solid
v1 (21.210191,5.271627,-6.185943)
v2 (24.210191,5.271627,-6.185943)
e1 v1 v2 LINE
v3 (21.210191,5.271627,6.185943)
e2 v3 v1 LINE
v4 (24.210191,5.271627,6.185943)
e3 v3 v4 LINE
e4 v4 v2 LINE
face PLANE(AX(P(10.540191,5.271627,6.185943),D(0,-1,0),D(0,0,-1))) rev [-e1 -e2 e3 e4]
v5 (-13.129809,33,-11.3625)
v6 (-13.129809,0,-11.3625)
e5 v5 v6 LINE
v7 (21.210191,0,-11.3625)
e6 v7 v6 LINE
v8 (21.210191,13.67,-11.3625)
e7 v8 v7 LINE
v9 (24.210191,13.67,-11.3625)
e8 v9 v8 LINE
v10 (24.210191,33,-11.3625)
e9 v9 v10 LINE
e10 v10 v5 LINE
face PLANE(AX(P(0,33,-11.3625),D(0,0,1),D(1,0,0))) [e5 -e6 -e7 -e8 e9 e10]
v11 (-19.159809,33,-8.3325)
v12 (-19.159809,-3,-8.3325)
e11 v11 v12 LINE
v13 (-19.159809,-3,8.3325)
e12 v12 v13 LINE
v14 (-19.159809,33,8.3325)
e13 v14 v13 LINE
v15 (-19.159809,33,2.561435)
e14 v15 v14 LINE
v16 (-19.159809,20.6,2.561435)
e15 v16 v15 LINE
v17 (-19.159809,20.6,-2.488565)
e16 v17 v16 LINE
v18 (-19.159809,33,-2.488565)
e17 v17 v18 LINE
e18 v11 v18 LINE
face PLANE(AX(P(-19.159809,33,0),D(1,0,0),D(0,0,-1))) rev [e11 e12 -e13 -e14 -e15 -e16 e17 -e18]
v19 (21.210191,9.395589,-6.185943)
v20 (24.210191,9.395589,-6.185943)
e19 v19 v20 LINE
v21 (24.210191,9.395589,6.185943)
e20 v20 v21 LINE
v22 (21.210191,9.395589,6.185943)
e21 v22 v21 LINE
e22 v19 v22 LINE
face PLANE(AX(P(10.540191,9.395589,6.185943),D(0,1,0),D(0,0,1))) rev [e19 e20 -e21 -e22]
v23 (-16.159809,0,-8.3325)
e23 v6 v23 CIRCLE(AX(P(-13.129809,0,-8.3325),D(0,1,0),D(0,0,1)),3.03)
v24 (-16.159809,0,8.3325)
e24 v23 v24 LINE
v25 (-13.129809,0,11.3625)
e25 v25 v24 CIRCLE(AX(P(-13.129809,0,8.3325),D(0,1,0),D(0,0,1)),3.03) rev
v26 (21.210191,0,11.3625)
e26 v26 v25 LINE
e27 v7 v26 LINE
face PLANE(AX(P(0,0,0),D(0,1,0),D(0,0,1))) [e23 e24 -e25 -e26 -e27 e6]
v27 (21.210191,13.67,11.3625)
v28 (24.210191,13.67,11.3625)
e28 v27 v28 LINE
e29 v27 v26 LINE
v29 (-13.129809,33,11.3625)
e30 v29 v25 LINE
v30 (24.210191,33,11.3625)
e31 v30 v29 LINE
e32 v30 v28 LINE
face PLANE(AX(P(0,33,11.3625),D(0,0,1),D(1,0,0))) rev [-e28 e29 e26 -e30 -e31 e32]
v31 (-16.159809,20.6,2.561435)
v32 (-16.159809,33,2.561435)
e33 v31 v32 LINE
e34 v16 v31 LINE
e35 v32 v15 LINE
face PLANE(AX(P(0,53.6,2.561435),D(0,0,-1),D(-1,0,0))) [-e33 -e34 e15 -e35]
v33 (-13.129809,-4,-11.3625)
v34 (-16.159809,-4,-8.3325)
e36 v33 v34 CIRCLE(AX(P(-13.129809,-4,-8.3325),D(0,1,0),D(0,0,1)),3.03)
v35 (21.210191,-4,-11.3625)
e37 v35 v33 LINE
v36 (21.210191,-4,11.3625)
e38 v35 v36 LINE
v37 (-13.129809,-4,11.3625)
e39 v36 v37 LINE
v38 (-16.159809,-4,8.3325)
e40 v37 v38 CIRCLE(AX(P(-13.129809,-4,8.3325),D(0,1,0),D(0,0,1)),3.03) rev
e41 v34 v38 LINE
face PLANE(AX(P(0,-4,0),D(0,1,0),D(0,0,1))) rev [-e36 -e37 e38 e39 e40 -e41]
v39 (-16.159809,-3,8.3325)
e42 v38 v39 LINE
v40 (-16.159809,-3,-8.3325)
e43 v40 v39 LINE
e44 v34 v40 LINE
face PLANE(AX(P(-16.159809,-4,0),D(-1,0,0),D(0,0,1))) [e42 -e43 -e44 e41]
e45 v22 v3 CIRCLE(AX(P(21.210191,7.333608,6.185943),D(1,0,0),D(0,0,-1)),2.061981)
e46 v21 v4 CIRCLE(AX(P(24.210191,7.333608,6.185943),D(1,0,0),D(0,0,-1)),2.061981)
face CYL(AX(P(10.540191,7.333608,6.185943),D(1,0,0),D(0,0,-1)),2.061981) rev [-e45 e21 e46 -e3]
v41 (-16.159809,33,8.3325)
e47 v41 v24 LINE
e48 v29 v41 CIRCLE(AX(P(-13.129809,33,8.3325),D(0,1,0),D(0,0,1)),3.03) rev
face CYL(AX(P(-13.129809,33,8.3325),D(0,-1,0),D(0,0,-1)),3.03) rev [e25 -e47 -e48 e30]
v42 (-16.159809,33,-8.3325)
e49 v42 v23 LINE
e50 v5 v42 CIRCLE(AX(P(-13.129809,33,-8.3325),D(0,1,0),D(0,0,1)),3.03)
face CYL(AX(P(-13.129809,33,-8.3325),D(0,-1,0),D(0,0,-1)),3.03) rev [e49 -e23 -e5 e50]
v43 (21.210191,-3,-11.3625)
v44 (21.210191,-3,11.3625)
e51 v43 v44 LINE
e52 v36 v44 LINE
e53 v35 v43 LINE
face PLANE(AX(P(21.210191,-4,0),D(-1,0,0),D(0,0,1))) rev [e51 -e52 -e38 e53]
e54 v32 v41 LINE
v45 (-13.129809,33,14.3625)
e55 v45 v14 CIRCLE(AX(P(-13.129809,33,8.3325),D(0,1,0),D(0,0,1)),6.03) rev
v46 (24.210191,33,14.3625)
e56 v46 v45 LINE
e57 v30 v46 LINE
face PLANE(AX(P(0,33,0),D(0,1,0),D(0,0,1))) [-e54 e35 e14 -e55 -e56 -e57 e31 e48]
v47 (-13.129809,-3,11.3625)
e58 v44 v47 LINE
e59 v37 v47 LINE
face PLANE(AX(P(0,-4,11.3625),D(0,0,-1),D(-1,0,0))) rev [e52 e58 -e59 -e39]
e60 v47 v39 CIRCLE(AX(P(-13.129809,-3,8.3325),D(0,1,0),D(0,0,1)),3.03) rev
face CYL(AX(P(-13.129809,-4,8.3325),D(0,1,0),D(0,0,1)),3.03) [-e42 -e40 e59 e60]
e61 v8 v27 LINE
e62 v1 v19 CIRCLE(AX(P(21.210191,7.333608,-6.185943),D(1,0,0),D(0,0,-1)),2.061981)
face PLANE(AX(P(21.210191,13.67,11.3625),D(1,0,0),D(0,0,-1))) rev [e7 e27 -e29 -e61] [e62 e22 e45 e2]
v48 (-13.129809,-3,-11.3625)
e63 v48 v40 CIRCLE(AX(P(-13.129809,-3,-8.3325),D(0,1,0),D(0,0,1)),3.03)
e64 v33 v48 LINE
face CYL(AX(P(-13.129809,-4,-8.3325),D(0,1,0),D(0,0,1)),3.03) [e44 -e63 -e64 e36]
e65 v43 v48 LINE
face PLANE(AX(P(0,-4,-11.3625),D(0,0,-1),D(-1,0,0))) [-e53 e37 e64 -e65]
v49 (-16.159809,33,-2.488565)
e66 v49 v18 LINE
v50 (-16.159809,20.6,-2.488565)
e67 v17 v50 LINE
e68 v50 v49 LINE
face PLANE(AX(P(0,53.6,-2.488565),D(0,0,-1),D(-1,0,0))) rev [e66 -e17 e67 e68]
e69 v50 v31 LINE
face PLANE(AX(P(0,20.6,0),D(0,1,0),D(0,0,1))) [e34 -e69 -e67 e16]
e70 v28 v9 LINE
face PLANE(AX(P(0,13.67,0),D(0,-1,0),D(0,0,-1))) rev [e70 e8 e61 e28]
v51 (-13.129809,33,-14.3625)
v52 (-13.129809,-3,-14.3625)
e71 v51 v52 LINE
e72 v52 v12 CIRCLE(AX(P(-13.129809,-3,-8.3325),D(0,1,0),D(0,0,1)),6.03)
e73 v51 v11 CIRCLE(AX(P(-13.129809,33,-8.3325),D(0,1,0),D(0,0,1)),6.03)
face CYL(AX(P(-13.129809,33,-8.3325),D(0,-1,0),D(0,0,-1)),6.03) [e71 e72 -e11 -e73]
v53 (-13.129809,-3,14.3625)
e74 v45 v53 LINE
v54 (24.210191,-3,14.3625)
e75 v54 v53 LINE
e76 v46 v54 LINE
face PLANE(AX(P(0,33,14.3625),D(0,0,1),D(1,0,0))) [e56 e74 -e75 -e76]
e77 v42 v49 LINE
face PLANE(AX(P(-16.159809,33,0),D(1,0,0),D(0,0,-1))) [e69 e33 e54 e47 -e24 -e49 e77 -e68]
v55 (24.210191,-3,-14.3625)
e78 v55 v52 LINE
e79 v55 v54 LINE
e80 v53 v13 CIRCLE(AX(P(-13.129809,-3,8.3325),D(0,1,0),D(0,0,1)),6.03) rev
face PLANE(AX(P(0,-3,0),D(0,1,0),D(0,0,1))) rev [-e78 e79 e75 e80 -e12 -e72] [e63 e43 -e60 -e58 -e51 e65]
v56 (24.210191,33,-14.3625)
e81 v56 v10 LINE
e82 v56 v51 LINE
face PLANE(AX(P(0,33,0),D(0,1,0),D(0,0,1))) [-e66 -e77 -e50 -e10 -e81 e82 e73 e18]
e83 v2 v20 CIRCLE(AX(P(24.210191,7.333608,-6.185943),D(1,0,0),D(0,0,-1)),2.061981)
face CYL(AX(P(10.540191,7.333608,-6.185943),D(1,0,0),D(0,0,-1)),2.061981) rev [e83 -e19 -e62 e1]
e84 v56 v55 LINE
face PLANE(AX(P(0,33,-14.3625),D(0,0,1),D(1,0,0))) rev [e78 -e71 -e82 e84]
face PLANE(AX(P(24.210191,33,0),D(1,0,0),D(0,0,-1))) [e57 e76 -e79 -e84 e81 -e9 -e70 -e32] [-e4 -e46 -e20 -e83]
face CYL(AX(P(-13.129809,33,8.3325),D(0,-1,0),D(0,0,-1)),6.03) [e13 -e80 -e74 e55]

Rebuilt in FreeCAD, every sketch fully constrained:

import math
import FreeCAD as App
import Part
import Sketcher
Q = App.Units.Quantity


def faces_at(feature, points):
    """Names of the faces that lie closest to the given points."""
    faces = feature.Shape.Faces
    near = lambda p: min(range(len(faces)), key=lambda i: faces[i].distToShape(Part.Vertex(*p))[0])
    return sorted({f"Face{near(p) + 1}" for p in points})

doc = App.newDocument("Part")
body = doc.addObject("PartDesign::Body", "Body")

# Sketch on XZ plane
sketch1 = body.newObject("Sketcher::SketchObject", "Sketch")
sketch1.AttachmentSupport = (doc.getObject("XZ_Plane"), [""])
sketch1.MapMode = "FlatFace"
sketch1.addGeometry(Part.LineSegment(App.Vector(21.2, -11.4, 0), App.Vector(-13.1, -11.4, 0)), False)
sketch1.addGeometry(Part.ArcOfCircle(Part.Circle(App.Vector(-13.1, -8.3, 0), App.Vector(0, 0, 1), 3), math.radians(180), math.radians(270)), False)
sketch1.addGeometry(Part.LineSegment(App.Vector(-16.2, -8.3, 0), App.Vector(-16.2, 8.3, 0)), False)
sketch1.addGeometry(Part.ArcOfCircle(Part.Circle(App.Vector(-13.1, 8.3, 0), App.Vector(0, 0, 1), 3), math.radians(90), math.radians(180)), False)
sketch1.addGeometry(Part.LineSegment(App.Vector(-13.1, 11.4, 0), App.Vector(21.2, 11.4, 0)), False)
sketch1.addGeometry(Part.LineSegment(App.Vector(21.2, 11.4, 0), App.Vector(21.2, -11.4, 0)), False)
sketch1.addConstraint(Sketcher.Constraint("Tangent", 0, 2, 1, 2))
sketch1.addConstraint(Sketcher.Constraint("Tangent", 1, 1, 2, 1))
sketch1.addConstraint(Sketcher.Constraint("Tangent", 2, 2, 3, 2))
sketch1.addConstraint(Sketcher.Constraint("Tangent", 3, 1, 4, 1))
sketch1.addConstraint(Sketcher.Constraint("Coincident", 4, 2, 5, 1))
sketch1.addConstraint(Sketcher.Constraint("Coincident", 5, 2, 0, 1))
sketch1.addConstraint(Sketcher.Constraint("Horizontal", 0))
sketch1.addConstraint(Sketcher.Constraint("Vertical", 2))
sketch1.addConstraint(Sketcher.Constraint("Horizontal", 4))
sketch1.addConstraint(Sketcher.Constraint("Vertical", 5))
sketch1.addConstraint(Sketcher.Constraint("Equal", 1, 3))
sketch1.addConstraint(Sketcher.Constraint("Radius", 1, Q("3.03 mm")))
sketch1.addConstraint(Sketcher.Constraint("DistanceX", 0, 2, 0, 1, Q("34.34 mm")))
sketch1.addConstraint(Sketcher.Constraint("DistanceY", 2, 1, 2, 2, Q("16.665 mm")))
sketch1.addConstraint(Sketcher.Constraint("DistanceY", 1, 3, -1, 1, Q("8.3325 mm")))
sketch1.addConstraint(Sketcher.Constraint("DistanceX", 1, 3, -1, 1, Q("13.129809 mm")))
pad1 = body.newObject("PartDesign::Pad", "Pad")
pad1.Profile = sketch1
pad1.Length = 33
pad1.Reversed = True
doc.recompute()

thickness = body.newObject("PartDesign::Thickness", "Thickness")
thickness.Base = (pad1, faces_at(pad1, [(2.525, 33, 0)]))
thickness.Value = 3
thickness.Reversed = False
thickness.Join = "Intersection"

# Sketch on YZ plane
sketch2 = body.newObject("Sketcher::SketchObject", "Sketch001")
sketch2.AttachmentSupport = (doc.getObject("YZ_Plane"), [""])
sketch2.MapMode = "FlatFace"
sketch2.AttachmentOffset = App.Placement(App.Vector(0, 0, 21.210191), App.Rotation())
sketch2.addGeometry(Part.LineSegment(App.Vector(33, -11, 0), App.Vector(0, -11, 0)), False)
sketch2.addGeometry(Part.LineSegment(App.Vector(0, -11, 0), App.Vector(0, 11, 0)), False)
sketch2.addGeometry(Part.LineSegment(App.Vector(0, 11, 0), App.Vector(33, 11, 0)), False)
sketch2.addGeometry(Part.LineSegment(App.Vector(33, 11, 0), App.Vector(33, -11, 0)), False)
sketch2.addConstraint(Sketcher.Constraint("Coincident", 0, 2, 1, 1))
sketch2.addConstraint(Sketcher.Constraint("Coincident", 1, 2, 2, 1))
sketch2.addConstraint(Sketcher.Constraint("Coincident", 2, 2, 3, 1))
sketch2.addConstraint(Sketcher.Constraint("Coincident", 3, 2, 0, 1))
sketch2.addConstraint(Sketcher.Constraint("Horizontal", 0))
sketch2.addConstraint(Sketcher.Constraint("Vertical", 1))
sketch2.addConstraint(Sketcher.Constraint("Horizontal", 2))
sketch2.addConstraint(Sketcher.Constraint("Vertical", 3))
sketch2.addConstraint(Sketcher.Constraint("Symmetric", 0, 2, 1, 2, -1, 1))
sketch2.addConstraint(Sketcher.Constraint("DistanceX", 0, 2, 0, 1, Q("33 mm")))
sketch2.addConstraint(Sketcher.Constraint("DistanceY", 1, 1, 1, 2, Q("22.725 mm")))
pocket1 = body.newObject("PartDesign::Pocket", "Pocket")
pocket1.Profile = sketch2
pocket1.Length = 33
pocket1.Reversed = True

# Sketch on XZ plane
sketch3 = body.newObject("Sketcher::SketchObject", "Sketch002")
sketch3.AttachmentSupport = (doc.getObject("XZ_Plane"), [""])
sketch3.MapMode = "FlatFace"
sketch3.AttachmentOffset = App.Placement(App.Vector(0, 0, -20.6), App.Rotation())
sketch3.addGeometry(Part.LineSegment(App.Vector(-21, -2, 0), App.Vector(-21, 3, 0)), False)
sketch3.addGeometry(Part.LineSegment(App.Vector(-21, 3, 0), App.Vector(-16, 3, 0)), False)
sketch3.addGeometry(Part.LineSegment(App.Vector(-16, 3, 0), App.Vector(-16, -2, 0)), False)
sketch3.addGeometry(Part.LineSegment(App.Vector(-16, -2, 0), App.Vector(-21, -2, 0)), False)
sketch3.addConstraint(Sketcher.Constraint("Coincident", 0, 2, 1, 1))
sketch3.addConstraint(Sketcher.Constraint("Coincident", 1, 2, 2, 1))
sketch3.addConstraint(Sketcher.Constraint("Coincident", 2, 2, 3, 1))
sketch3.addConstraint(Sketcher.Constraint("Coincident", 3, 2, 0, 1))
sketch3.addConstraint(Sketcher.Constraint("Vertical", 0))
sketch3.addConstraint(Sketcher.Constraint("Horizontal", 1))
sketch3.addConstraint(Sketcher.Constraint("Vertical", 2))
sketch3.addConstraint(Sketcher.Constraint("Horizontal", 3))
sketch3.addConstraint(Sketcher.Constraint("DistanceY", 0, 1, 0, 2, Q("5.05 mm")))
sketch3.addConstraint(Sketcher.Constraint("DistanceX", 1, 1, 1, 2, Q("5.050381 mm")))
sketch3.addConstraint(Sketcher.Constraint("DistanceX", 0, 2, -1, 1, Q("21.210191 mm")))
sketch3.addConstraint(Sketcher.Constraint("DistanceY", -1, 1, 0, 2, Q("2.561435 mm")))
pocket2 = body.newObject("PartDesign::Pocket", "Pocket001")
pocket2.Profile = sketch3
pocket2.Length = 33

# Sketch on XZ plane
sketch4 = body.newObject("Sketcher::SketchObject", "Sketch003")
sketch4.AttachmentSupport = (doc.getObject("XZ_Plane"), [""])
sketch4.MapMode = "FlatFace"
sketch4.AttachmentOffset = App.Placement(App.Vector(0, 0, 4), App.Rotation())
sketch4.addGeometry(Part.LineSegment(App.Vector(21.2, -11.4, 0), App.Vector(-13.1, -11.4, 0)), False)
sketch4.addGeometry(Part.ArcOfCircle(Part.Circle(App.Vector(-13.1, -8.3, 0), App.Vector(0, 0, 1), 3), math.radians(180), math.radians(270)), False)
sketch4.addGeometry(Part.LineSegment(App.Vector(-16.2, -8.3, 0), App.Vector(-16.2, 8.3, 0)), False)
sketch4.addGeometry(Part.ArcOfCircle(Part.Circle(App.Vector(-13.1, 8.3, 0), App.Vector(0, 0, 1), 3), math.radians(90), math.radians(180)), False)
sketch4.addGeometry(Part.LineSegment(App.Vector(-13.1, 11.4, 0), App.Vector(21.2, 11.4, 0)), False)
sketch4.addGeometry(Part.LineSegment(App.Vector(21.2, 11.4, 0), App.Vector(21.2, -11.4, 0)), False)
sketch4.addConstraint(Sketcher.Constraint("Tangent", 0, 2, 1, 2))
sketch4.addConstraint(Sketcher.Constraint("Tangent", 1, 1, 2, 1))
sketch4.addConstraint(Sketcher.Constraint("Tangent", 2, 2, 3, 2))
sketch4.addConstraint(Sketcher.Constraint("Tangent", 3, 1, 4, 1))
sketch4.addConstraint(Sketcher.Constraint("Coincident", 4, 2, 5, 1))
sketch4.addConstraint(Sketcher.Constraint("Coincident", 5, 2, 0, 1))
sketch4.addConstraint(Sketcher.Constraint("Horizontal", 0))
sketch4.addConstraint(Sketcher.Constraint("Vertical", 2))
sketch4.addConstraint(Sketcher.Constraint("Horizontal", 4))
sketch4.addConstraint(Sketcher.Constraint("Vertical", 5))
sketch4.addConstraint(Sketcher.Constraint("Equal", 1, 3))
sketch4.addConstraint(Sketcher.Constraint("Radius", 1, Q("3.03 mm")))
sketch4.addConstraint(Sketcher.Constraint("DistanceX", 0, 2, 0, 1, Q("34.34 mm")))
sketch4.addConstraint(Sketcher.Constraint("DistanceY", 2, 1, 2, 2, Q("16.665 mm")))
sketch4.addConstraint(Sketcher.Constraint("DistanceY", 1, 3, -1, 1, Q("8.3325 mm")))
sketch4.addConstraint(Sketcher.Constraint("DistanceX", 1, 3, -1, 1, Q("13.129809 mm")))
pad2 = body.newObject("PartDesign::Pad", "Pad001")
pad2.Profile = sketch4
pad2.Length = 4
pad2.Reversed = True

# Sketch on XZ plane
sketch5 = body.newObject("Sketcher::SketchObject", "Sketch004")
sketch5.AttachmentSupport = (doc.getObject("XZ_Plane"), [""])
sketch5.MapMode = "FlatFace"
sketch5.addGeometry(Part.LineSegment(App.Vector(21.2, -11.4, 0), App.Vector(21.2, 11.4, 0)), False)
sketch5.addGeometry(Part.LineSegment(App.Vector(21.2, 11.4, 0), App.Vector(24.2, 11.4, 0)), False)
sketch5.addGeometry(Part.LineSegment(App.Vector(24.2, 11.4, 0), App.Vector(24.2, -11.4, 0)), False)
sketch5.addGeometry(Part.LineSegment(App.Vector(24.2, -11.4, 0), App.Vector(21.2, -11.4, 0)), False)
sketch5.addConstraint(Sketcher.Constraint("Coincident", 0, 2, 1, 1))
sketch5.addConstraint(Sketcher.Constraint("Coincident", 1, 2, 2, 1))
sketch5.addConstraint(Sketcher.Constraint("Coincident", 2, 2, 3, 1))
sketch5.addConstraint(Sketcher.Constraint("Coincident", 3, 2, 0, 1))
sketch5.addConstraint(Sketcher.Constraint("Vertical", 0))
sketch5.addConstraint(Sketcher.Constraint("Horizontal", 1))
sketch5.addConstraint(Sketcher.Constraint("Vertical", 2))
sketch5.addConstraint(Sketcher.Constraint("Horizontal", 3))
sketch5.addConstraint(Sketcher.Constraint("DistanceX", 1, 1, 1, 2, Q("3 mm")))
sketch5.addConstraint(Sketcher.Constraint("DistanceY", 0, 1, 0, 2, Q("22.725 mm")))
sketch5.addConstraint(Sketcher.Constraint("DistanceY", -1, 1, 0, 2, Q("11.3625 mm")))
sketch5.addConstraint(Sketcher.Constraint("DistanceX", -1, 1, 0, 2, Q("21.210191 mm")))
pad3 = body.newObject("PartDesign::Pad", "Pad002")
pad3.Profile = sketch5
pad3.Length = 13.67
pad3.Reversed = True

# Sketch on YZ plane
sketch6 = body.newObject("Sketcher::SketchObject", "Sketch005")
sketch6.AttachmentSupport = (doc.getObject("YZ_Plane"), [""])
sketch6.MapMode = "FlatFace"
sketch6.AttachmentOffset = App.Placement(App.Vector(0, 0, 24.210191), App.Rotation())
sketch6.addGeometry(Part.LineSegment(App.Vector(9.4, -6.2, 0), App.Vector(9.4, 6.2, 0)), False)
sketch6.addGeometry(Part.ArcOfCircle(Part.Circle(App.Vector(7.3, 6.2, 0), App.Vector(0, 0, 1), 2.1), math.radians(0), math.radians(180)), False)
sketch6.addGeometry(Part.LineSegment(App.Vector(5.3, 6.2, 0), App.Vector(5.3, -6.2, 0)), False)
sketch6.addGeometry(Part.ArcOfCircle(Part.Circle(App.Vector(7.3, -6.2, 0), App.Vector(0, 0, 1), 2.1), math.radians(-180), math.radians(0)), False)
sketch6.addConstraint(Sketcher.Constraint("Tangent", 0, 2, 1, 1))
sketch6.addConstraint(Sketcher.Constraint("Tangent", 1, 2, 2, 1))
sketch6.addConstraint(Sketcher.Constraint("Tangent", 2, 2, 3, 1))
sketch6.addConstraint(Sketcher.Constraint("Tangent", 3, 2, 0, 1))
sketch6.addConstraint(Sketcher.Constraint("Vertical", 0))
sketch6.addConstraint(Sketcher.Constraint("Vertical", 2))
sketch6.addConstraint(Sketcher.Constraint("Radius", 1, Q("2.061981 mm")))
sketch6.addConstraint(Sketcher.Constraint("DistanceY", 0, 1, 0, 2, Q("12.371885 mm")))
sketch6.addConstraint(Sketcher.Constraint("DistanceX", -1, 1, 1, 3, Q("7.333608 mm")))
sketch6.addConstraint(Sketcher.Constraint("DistanceY", -1, 1, 1, 3, Q("6.185943 mm")))
pocket3 = body.newObject("PartDesign::Pocket", "Pocket002")
pocket3.Profile = sketch6
pocket3.Length = 13.67

doc.recompute()
